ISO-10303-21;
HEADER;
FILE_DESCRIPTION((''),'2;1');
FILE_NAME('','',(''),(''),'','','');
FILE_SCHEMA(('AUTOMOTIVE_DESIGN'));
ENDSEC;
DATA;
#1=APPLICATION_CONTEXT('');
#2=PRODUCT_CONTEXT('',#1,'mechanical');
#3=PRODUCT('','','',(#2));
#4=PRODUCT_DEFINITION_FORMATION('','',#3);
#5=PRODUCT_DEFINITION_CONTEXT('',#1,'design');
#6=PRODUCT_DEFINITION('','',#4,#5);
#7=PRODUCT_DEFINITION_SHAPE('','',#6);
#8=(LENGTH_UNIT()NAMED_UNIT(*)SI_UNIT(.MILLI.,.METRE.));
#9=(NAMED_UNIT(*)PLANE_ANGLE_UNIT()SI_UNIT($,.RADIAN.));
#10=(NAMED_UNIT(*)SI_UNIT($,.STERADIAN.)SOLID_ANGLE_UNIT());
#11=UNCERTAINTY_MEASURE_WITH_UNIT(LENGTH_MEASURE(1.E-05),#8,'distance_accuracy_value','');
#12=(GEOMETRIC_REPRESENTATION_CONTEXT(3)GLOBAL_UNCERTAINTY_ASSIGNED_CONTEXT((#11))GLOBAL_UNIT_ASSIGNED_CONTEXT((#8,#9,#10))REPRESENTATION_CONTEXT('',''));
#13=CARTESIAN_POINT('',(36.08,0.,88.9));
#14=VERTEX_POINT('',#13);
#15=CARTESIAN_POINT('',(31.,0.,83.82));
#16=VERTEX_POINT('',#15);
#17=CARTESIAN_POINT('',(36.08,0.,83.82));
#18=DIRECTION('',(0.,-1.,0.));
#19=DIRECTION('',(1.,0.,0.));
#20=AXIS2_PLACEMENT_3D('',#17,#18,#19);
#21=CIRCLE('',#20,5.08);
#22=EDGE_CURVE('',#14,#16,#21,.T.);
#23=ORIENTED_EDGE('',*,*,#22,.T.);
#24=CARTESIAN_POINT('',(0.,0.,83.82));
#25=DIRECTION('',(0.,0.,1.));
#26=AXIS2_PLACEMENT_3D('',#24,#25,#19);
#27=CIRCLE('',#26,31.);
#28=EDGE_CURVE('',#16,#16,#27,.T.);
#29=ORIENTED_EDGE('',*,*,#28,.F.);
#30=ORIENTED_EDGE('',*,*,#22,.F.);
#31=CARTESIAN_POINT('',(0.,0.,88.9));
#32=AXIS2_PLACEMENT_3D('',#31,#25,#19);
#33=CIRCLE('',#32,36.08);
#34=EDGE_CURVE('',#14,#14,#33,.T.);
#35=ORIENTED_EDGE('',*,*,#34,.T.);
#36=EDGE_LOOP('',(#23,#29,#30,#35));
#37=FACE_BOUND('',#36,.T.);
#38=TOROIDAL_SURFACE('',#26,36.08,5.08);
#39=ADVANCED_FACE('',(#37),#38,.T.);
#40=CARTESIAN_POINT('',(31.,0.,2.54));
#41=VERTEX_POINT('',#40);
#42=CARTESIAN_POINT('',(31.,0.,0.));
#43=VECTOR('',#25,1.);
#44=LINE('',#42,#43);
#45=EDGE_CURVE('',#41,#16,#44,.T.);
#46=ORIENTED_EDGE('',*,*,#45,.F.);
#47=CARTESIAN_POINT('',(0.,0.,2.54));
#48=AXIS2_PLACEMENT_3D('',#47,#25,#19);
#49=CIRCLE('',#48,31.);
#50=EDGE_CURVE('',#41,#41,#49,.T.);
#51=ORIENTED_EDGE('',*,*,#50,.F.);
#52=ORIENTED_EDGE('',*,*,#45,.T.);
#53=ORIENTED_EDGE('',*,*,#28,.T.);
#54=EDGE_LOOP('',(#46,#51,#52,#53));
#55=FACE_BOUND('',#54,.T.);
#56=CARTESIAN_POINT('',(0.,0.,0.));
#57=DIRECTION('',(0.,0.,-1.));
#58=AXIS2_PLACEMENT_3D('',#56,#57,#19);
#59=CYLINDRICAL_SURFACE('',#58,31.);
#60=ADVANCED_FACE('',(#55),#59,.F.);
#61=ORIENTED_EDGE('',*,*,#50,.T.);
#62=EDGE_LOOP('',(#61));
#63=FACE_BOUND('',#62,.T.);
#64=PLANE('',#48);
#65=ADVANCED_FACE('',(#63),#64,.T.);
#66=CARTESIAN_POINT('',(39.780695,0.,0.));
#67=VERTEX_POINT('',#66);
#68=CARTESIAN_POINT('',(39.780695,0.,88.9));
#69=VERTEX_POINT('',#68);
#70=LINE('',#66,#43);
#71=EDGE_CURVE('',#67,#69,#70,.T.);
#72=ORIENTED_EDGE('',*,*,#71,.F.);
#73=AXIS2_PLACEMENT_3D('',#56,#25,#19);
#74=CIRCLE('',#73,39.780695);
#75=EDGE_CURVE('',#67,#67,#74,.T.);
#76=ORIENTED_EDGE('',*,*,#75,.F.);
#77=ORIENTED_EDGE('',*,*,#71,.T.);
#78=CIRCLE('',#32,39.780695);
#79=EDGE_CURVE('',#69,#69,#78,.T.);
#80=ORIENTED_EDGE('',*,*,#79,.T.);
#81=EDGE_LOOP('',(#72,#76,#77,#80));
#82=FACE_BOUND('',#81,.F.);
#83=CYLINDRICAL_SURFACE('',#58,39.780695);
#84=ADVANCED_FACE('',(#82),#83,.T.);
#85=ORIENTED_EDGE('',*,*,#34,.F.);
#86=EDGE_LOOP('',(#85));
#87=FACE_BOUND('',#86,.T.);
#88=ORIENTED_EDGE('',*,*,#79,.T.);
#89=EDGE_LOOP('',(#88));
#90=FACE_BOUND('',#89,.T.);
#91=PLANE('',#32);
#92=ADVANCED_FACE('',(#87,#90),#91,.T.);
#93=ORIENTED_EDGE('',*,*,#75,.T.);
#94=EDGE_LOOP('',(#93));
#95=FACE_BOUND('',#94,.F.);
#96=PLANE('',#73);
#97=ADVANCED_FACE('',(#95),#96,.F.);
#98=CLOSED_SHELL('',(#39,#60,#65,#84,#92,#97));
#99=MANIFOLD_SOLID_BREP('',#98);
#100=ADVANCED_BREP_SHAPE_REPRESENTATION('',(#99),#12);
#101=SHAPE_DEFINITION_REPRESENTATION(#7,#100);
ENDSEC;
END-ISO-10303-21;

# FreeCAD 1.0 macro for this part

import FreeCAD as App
import Part
import Sketcher
from FreeCAD import Vector
Q = App.Units.Quantity


def edges_at(feature, points):
    """Names of the edges that pass closest to the given points."""
    edges = feature.Shape.Edges
    near = lambda p: min(range(len(edges)), key=lambda i: edges[i].distToShape(Part.Vertex(*p))[0])
    return sorted({f"Edge{near(p) + 1}" for p in points})

doc = App.newDocument("Part")
body = doc.addObject("PartDesign::Body", "Body")

# Sketch on XY plane
sketch1 = body.newObject("Sketcher::SketchObject", "Sketch")
sketch1.AttachmentSupport = (doc.getObject("XY_Plane"), [""])
sketch1.MapMode = "FlatFace"
sketch1.addGeometry([
    Part.Circle(Vector(0, 0, 0), Vector(0, 0, 1), 40),
    Part.Circle(Vector(0, 0, 0), Vector(0, 0, 1), 31),
], False)
sketch1.addConstraint([
    Sketcher.Constraint("Coincident", 0, 3, -1, 1),
    Sketcher.Constraint("Coincident", 1, 3, -1, 1),
    Sketcher.Constraint("Diameter", 1, Q("62 mm")),
    Sketcher.Constraint("Diameter", 0, Q("79.56139 mm")),
])
pad1 = body.newObject("PartDesign::Pad", "Pad")
pad1.Profile = sketch1
pad1.Length = Q("3.5 in")

# Sketch on XY plane
sketch2 = body.newObject("Sketcher::SketchObject", "Sketch001")
sketch2.AttachmentSupport = (doc.getObject("XY_Plane"), [""])
sketch2.MapMode = "FlatFace"
sketch2.addGeometry(Part.Circle(Vector(0, 0, 0), Vector(0, 0, 1), 31), False)
sketch2.addConstraint([
    Sketcher.Constraint("Coincident", 0, 3, -1, 1),
    Sketcher.Constraint("Diameter", 0, Q("62 mm")),
])
pad2 = body.newObject("PartDesign::Pad", "Pad001")
pad2.Profile = sketch2
pad2.Length = Q("0.1 in")
doc.recompute()

fillet = body.newObject("PartDesign::Fillet", "Fillet")
fillet.Base = (pad2, edges_at(pad2, [(-31, 0, 88.9)]))
fillet.Radius = Q("0.2 in")

doc.recompute()
